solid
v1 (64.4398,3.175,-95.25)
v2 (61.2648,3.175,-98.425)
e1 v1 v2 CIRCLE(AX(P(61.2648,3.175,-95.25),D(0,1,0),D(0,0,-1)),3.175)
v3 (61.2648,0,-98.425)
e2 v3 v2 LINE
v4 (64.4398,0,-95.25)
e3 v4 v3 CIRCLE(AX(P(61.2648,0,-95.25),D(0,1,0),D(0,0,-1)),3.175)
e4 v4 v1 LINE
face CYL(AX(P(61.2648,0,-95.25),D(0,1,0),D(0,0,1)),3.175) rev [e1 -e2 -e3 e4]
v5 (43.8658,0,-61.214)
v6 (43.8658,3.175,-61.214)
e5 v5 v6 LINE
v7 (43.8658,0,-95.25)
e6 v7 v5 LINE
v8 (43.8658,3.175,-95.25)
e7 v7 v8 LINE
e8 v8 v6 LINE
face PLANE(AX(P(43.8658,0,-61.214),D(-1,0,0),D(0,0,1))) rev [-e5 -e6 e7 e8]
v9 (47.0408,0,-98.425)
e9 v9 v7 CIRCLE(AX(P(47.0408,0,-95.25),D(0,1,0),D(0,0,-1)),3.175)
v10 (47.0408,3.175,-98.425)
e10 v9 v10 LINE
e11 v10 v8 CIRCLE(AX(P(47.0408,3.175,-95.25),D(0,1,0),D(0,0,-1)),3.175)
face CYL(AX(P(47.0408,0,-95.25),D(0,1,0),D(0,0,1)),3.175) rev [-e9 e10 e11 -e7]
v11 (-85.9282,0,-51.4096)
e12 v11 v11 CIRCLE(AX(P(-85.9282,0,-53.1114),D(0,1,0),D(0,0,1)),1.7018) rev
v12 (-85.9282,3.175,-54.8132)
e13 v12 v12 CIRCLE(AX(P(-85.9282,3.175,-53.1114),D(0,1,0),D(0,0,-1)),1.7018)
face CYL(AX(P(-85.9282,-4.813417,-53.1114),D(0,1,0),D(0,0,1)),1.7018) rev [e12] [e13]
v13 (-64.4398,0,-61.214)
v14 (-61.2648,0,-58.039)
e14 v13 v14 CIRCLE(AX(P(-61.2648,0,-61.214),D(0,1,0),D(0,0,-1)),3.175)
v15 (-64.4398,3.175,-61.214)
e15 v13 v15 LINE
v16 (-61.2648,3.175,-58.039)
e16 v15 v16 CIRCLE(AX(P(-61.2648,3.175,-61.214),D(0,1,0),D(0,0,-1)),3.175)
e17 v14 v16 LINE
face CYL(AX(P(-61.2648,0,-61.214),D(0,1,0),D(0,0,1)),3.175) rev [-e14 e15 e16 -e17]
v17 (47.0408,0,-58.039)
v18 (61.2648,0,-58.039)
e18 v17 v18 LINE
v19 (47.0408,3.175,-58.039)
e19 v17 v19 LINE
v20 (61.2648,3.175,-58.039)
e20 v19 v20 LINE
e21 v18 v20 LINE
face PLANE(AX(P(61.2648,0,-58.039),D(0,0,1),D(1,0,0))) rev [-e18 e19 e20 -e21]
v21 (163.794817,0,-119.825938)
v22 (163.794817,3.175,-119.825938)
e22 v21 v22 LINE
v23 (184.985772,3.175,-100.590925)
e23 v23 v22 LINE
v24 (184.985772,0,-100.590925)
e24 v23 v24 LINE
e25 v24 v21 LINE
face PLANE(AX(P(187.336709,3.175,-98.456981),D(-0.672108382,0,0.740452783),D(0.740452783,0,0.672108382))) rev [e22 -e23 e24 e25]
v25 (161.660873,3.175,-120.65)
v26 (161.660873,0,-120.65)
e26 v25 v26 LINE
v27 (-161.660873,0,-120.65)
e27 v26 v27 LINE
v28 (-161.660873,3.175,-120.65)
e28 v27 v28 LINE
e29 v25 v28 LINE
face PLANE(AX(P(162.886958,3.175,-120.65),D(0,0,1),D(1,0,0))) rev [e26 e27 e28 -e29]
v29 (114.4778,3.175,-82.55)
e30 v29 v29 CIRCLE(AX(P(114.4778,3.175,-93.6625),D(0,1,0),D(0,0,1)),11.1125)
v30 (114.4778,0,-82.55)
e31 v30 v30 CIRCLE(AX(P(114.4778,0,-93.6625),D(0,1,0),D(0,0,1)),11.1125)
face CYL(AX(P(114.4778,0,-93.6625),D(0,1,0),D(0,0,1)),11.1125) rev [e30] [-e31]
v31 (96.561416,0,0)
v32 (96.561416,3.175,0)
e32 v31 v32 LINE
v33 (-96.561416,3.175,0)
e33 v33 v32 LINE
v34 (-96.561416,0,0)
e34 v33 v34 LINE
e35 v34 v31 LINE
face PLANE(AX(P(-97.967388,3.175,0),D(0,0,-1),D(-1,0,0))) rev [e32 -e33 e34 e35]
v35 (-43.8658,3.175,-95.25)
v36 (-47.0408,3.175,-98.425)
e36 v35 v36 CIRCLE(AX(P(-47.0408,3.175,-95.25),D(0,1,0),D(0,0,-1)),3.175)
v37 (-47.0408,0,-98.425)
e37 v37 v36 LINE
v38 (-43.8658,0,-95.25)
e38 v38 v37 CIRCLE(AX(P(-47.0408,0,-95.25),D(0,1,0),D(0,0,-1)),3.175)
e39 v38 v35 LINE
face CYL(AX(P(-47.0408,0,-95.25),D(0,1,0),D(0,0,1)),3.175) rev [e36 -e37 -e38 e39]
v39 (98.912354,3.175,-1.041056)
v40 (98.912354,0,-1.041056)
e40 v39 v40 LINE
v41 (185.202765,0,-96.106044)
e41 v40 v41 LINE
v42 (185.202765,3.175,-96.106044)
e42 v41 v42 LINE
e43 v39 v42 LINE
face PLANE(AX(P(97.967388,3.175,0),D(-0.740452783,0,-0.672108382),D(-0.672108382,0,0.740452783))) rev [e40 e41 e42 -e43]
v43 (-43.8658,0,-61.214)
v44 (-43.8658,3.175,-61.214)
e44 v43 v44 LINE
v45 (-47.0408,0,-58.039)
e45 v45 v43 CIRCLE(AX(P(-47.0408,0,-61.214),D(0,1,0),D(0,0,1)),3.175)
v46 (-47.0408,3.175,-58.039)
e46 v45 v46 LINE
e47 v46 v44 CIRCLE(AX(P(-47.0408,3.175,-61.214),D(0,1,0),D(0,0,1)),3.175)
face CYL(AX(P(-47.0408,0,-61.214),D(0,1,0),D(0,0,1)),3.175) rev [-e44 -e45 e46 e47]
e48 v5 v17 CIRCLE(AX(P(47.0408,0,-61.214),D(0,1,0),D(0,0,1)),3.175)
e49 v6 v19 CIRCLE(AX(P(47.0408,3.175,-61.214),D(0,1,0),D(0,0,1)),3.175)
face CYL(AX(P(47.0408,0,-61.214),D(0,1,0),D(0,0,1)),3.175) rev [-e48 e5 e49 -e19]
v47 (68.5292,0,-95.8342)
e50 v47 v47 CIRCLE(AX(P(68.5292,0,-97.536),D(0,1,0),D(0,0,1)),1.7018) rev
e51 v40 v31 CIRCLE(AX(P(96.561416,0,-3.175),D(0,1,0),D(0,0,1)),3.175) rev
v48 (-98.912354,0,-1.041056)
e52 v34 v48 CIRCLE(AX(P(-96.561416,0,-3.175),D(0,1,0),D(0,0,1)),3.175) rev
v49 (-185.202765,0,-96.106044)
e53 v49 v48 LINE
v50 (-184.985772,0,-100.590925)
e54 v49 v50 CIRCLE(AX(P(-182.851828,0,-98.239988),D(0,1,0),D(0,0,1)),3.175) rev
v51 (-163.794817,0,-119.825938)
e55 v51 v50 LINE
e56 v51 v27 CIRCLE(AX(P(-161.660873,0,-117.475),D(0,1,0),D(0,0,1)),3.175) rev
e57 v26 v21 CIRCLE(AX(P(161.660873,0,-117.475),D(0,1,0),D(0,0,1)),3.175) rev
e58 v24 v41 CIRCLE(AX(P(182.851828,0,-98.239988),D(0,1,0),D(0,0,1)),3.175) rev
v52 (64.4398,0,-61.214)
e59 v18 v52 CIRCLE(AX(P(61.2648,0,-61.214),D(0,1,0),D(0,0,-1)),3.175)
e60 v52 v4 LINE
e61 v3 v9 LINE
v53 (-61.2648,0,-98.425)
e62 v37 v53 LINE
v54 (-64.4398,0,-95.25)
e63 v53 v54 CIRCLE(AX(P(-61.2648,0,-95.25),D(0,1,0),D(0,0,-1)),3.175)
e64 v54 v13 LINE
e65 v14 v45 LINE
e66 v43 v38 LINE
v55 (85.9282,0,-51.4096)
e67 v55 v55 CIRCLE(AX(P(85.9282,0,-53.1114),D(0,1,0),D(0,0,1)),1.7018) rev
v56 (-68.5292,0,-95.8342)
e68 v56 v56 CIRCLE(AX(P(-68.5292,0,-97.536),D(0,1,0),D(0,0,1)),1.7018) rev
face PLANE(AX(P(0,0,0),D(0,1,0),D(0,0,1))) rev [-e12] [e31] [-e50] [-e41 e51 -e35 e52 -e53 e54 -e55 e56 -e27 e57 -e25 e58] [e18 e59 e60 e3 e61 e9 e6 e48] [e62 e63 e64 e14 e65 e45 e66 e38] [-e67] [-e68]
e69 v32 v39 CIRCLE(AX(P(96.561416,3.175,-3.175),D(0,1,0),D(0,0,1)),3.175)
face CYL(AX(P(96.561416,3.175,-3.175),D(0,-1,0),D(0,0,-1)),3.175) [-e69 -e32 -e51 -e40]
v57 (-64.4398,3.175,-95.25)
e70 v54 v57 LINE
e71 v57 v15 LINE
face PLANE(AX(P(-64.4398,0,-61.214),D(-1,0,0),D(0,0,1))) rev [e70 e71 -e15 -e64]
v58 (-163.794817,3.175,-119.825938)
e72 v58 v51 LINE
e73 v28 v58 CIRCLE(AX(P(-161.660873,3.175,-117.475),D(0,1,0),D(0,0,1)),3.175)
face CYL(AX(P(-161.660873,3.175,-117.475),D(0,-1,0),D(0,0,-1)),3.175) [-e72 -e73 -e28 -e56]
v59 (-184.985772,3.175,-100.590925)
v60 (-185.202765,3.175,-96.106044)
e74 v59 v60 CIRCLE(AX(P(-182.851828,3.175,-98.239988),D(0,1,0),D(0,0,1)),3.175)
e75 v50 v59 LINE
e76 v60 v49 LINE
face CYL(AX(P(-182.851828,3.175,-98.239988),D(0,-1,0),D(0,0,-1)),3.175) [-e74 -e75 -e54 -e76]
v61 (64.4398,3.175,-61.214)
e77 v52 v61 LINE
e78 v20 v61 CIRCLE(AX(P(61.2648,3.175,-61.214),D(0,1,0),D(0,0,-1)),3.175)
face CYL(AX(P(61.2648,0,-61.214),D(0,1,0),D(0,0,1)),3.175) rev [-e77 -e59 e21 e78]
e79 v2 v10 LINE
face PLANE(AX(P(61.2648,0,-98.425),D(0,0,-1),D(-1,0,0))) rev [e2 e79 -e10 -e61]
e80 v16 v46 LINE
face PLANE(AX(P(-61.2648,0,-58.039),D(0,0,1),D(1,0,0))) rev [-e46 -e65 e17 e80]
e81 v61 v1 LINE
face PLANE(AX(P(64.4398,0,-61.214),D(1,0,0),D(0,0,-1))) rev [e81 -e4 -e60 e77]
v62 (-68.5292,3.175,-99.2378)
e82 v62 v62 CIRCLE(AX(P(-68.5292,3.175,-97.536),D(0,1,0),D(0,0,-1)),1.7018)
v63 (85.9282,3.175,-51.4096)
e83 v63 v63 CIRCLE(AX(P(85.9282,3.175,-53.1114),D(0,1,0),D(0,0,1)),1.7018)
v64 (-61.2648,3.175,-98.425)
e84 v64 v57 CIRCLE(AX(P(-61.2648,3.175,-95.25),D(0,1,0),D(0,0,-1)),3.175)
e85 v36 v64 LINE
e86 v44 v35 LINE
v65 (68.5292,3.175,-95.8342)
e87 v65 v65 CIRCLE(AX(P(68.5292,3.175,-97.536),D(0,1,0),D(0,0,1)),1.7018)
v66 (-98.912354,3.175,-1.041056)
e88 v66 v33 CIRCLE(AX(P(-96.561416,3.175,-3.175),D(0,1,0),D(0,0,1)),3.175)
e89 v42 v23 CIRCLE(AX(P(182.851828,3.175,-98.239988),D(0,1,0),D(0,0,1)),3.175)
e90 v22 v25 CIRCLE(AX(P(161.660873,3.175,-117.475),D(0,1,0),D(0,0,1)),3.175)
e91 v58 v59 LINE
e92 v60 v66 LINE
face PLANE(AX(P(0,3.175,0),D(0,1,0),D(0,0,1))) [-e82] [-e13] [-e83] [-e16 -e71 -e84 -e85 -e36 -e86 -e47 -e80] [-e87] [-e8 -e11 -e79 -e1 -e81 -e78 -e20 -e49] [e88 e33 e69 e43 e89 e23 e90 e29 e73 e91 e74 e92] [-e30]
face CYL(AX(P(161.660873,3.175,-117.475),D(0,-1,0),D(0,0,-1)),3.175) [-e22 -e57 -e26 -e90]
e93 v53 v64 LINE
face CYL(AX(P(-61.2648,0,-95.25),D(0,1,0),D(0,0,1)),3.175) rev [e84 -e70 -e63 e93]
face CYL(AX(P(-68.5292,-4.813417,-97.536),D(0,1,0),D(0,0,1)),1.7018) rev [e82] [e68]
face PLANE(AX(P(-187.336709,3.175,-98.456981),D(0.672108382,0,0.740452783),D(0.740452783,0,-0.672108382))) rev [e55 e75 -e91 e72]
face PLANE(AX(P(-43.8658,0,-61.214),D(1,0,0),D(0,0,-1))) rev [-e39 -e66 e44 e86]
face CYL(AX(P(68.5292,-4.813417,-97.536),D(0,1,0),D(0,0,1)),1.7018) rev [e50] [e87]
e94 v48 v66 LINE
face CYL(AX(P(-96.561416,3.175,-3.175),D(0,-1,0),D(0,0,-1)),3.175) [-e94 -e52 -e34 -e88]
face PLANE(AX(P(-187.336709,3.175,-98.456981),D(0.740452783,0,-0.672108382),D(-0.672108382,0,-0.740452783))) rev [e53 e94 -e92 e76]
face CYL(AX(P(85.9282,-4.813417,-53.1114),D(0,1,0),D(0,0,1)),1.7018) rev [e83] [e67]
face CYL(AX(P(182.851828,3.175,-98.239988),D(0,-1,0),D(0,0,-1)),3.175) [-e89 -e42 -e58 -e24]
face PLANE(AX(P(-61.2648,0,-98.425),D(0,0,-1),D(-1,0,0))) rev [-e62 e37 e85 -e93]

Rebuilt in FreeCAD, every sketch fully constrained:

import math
import FreeCAD as App
import Part
import Sketcher
Q = App.Units.Quantity


def edges_at(feature, points):
    """Names of the edges that pass closest to the given points."""
    edges = feature.Shape.Edges
    near = lambda p: min(range(len(edges)), key=lambda i: edges[i].distToShape(Part.Vertex(*p))[0])
    return sorted({f"Edge{near(p) + 1}" for p in points})

doc = App.newDocument("Part")
body = doc.addObject("PartDesign::Body", "Body")

sketch1 = body.newObject("Sketcher::SketchObject", "Sketch")
sketch1.AttachmentSupport = (doc.getObject("XZ_Plane"), [""])
sketch1.MapMode = "FlatFace"
sketch1.addGeometry(Part.LineSegment(App.Vector(-98, 0, 0), App.Vector(98, 0, 0)), False)
sketch1.addGeometry(Part.LineSegment(App.Vector(98, 0, 0), App.Vector(187, -98, 0)), False)
sketch1.addGeometry(Part.LineSegment(App.Vector(187, -98, 0), App.Vector(163, -121, 0)), False)
sketch1.addGeometry(Part.LineSegment(App.Vector(163, -121, 0), App.Vector(-163, -121, 0)), False)
sketch1.addGeometry(Part.LineSegment(App.Vector(-163, -121, 0), App.Vector(-187, -98, 0)), False)
sketch1.addGeometry(Part.LineSegment(App.Vector(-187, -98, 0), App.Vector(-98, 0, 0)), False)
sketch1.addConstraint(Sketcher.Constraint("Coincident", 0, 2, 1, 1))
sketch1.addConstraint(Sketcher.Constraint("Coincident", 1, 2, 2, 1))
sketch1.addConstraint(Sketcher.Constraint("Coincident", 2, 2, 3, 1))
sketch1.addConstraint(Sketcher.Constraint("Coincident", 3, 2, 4, 1))
sketch1.addConstraint(Sketcher.Constraint("Coincident", 4, 2, 5, 1))
sketch1.addConstraint(Sketcher.Constraint("Coincident", 5, 2, 0, 1))
sketch1.addConstraint(Sketcher.Constraint("Horizontal", 0))
sketch1.addConstraint(Sketcher.Constraint("Horizontal", 3))
sketch1.addConstraint(Sketcher.Constraint("Symmetric", 0, 2, 5, 2, -1, 1))
sketch1.addConstraint(Sketcher.Constraint("Symmetric", 1, 2, 4, 2, -2))
sketch1.addConstraint(Sketcher.Constraint("Perpendicular", 1, 2))
sketch1.addConstraint(Sketcher.Constraint("Perpendicular", 4, 5))
sketch1.addConstraint(Sketcher.Constraint("Distance", 2, Q("1.3 in")))
sketch1.addConstraint(Sketcher.Constraint("DistanceY", 2, 2, -1, 1, Q("4.75 in")))
sketch1.addConstraint(Sketcher.Constraint("Angle", 1, Q("-47.77 deg")))
sketch1.addConstraint(Sketcher.Constraint("DistanceX", 0, 1, 0, 2, 195.934777))
pad1 = body.newObject("PartDesign::Pad", "Pad")
pad1.Profile = sketch1
pad1.Length = Q("0.125 in")
pad1.Reversed = True

sketch2 = body.newObject("Sketcher::SketchObject", "Sketch001")
sketch2.AttachmentSupport = (doc.getObject("XZ_Plane"), [""])
sketch2.MapMode = "FlatFace"
sketch2.AttachmentOffset = App.Placement(App.Vector(0, 0, -0.125 * 25.4), App.Rotation())
sketch2.addGeometry(Part.LineSegment(App.Vector(-61.3, -58, 0), App.Vector(-47, -58, 0)), False)
sketch2.addGeometry(Part.ArcOfCircle(Part.Circle(App.Vector(-47, -61.2, 0), App.Vector(0, 0, 1), 3.2), math.radians(0), math.radians(90)), False)
sketch2.addGeometry(Part.LineSegment(App.Vector(-43.9, -61.2, 0), App.Vector(-43.9, -95.2, 0)), False)
sketch2.addGeometry(Part.ArcOfCircle(Part.Circle(App.Vector(-47, -95.2, 0), App.Vector(0, 0, 1), 3.2), math.radians(-90), math.radians(0)), False)
sketch2.addGeometry(Part.LineSegment(App.Vector(-47, -98.4, 0), App.Vector(-61.3, -98.4, 0)), False)
sketch2.addGeometry(Part.ArcOfCircle(Part.Circle(App.Vector(-61.3, -95.2, 0), App.Vector(0, 0, 1), 3.2), math.radians(-180), math.radians(-90)), False)
sketch2.addGeometry(Part.LineSegment(App.Vector(-64.4, -95.2, 0), App.Vector(-64.4, -61.2, 0)), False)
sketch2.addGeometry(Part.ArcOfCircle(Part.Circle(App.Vector(-61.3, -61.2, 0), App.Vector(0, 0, 1), 3.2), math.radians(90), math.radians(180)), False)
sketch2.addGeometry(Part.LineSegment(App.Vector(43.9, -95.2, 0), App.Vector(43.9, -61.2, 0)), False)
sketch2.addGeometry(Part.ArcOfCircle(Part.Circle(App.Vector(47, -61.2, 0), App.Vector(0, 0, 1), 3.2), math.radians(90), math.radians(180)), False)
sketch2.addGeometry(Part.LineSegment(App.Vector(47, -58, 0), App.Vector(61.3, -58, 0)), False)
sketch2.addGeometry(Part.ArcOfCircle(Part.Circle(App.Vector(61.3, -61.2, 0), App.Vector(0, 0, 1), 3.2), math.radians(0), math.radians(90)), False)
sketch2.addGeometry(Part.LineSegment(App.Vector(64.4, -61.2, 0), App.Vector(64.4, -95.2, 0)), False)
sketch2.addGeometry(Part.ArcOfCircle(Part.Circle(App.Vector(61.3, -95.2, 0), App.Vector(0, 0, 1), 3.2), math.radians(-90), math.radians(0)), False)
sketch2.addGeometry(Part.LineSegment(App.Vector(61.3, -98.4, 0), App.Vector(47, -98.4, 0)), False)
sketch2.addGeometry(Part.ArcOfCircle(Part.Circle(App.Vector(47, -95.2, 0), App.Vector(0, 0, 1), 3.2), math.radians(-180), math.radians(-90)), False)
sketch2.addConstraint(Sketcher.Constraint("Tangent", 0, 2, 1, 2))
sketch2.addConstraint(Sketcher.Constraint("Tangent", 1, 1, 2, 1))
sketch2.addConstraint(Sketcher.Constraint("Tangent", 2, 2, 3, 2))
sketch2.addConstraint(Sketcher.Constraint("Tangent", 3, 1, 4, 1))
sketch2.addConstraint(Sketcher.Constraint("Tangent", 4, 2, 5, 2))
sketch2.addConstraint(Sketcher.Constraint("Tangent", 5, 1, 6, 1))
sketch2.addConstraint(Sketcher.Constraint("Tangent", 6, 2, 7, 2))
sketch2.addConstraint(Sketcher.Constraint("Tangent", 7, 1, 0, 1))
sketch2.addConstraint(Sketcher.Constraint("Tangent", 8, 2, 9, 2))
sketch2.addConstraint(Sketcher.Constraint("Tangent", 9, 1, 10, 1))
sketch2.addConstraint(Sketcher.Constraint("Tangent", 10, 2, 11, 2))
sketch2.addConstraint(Sketcher.Constraint("Tangent", 11, 1, 12, 1))
sketch2.addConstraint(Sketcher.Constraint("Tangent", 12, 2, 13, 2))
sketch2.addConstraint(Sketcher.Constraint("Tangent", 13, 1, 14, 1))
sketch2.addConstraint(Sketcher.Constraint("Tangent", 14, 2, 15, 2))
sketch2.addConstraint(Sketcher.Constraint("Tangent", 15, 1, 8, 1))
sketch2.addConstraint(Sketcher.Constraint("Horizontal", 0))
sketch2.addConstraint(Sketcher.Constraint("Vertical", 2))
sketch2.addConstraint(Sketcher.Constraint("Horizontal", 4))
sketch2.addConstraint(Sketcher.Constraint("Vertical", 6))
sketch2.addConstraint(Sketcher.Constraint("Vertical", 8))
sketch2.addConstraint(Sketcher.Constraint("Horizontal", 10))
sketch2.addConstraint(Sketcher.Constraint("Vertical", 12))
sketch2.addConstraint(Sketcher.Constraint("Horizontal", 14))
sketch2.addConstraint(Sketcher.Constraint("Equal", 1, 3))
sketch2.addConstraint(Sketcher.Constraint("Equal", 3, 5))
sketch2.addConstraint(Sketcher.Constraint("Equal", 5, 7))
sketch2.addConstraint(Sketcher.Constraint("Equal", 7, 9))
sketch2.addConstraint(Sketcher.Constraint("Equal", 9, 11))
sketch2.addConstraint(Sketcher.Constraint("Equal", 11, 13))
sketch2.addConstraint(Sketcher.Constraint("Equal", 13, 15))
sketch2.addConstraint(Sketcher.Constraint("Symmetric", 1, 3, 9, 3, -2))
sketch2.addConstraint(Sketcher.Constraint("Symmetric", 5, 3, 13, 3, -2))
sketch2.addConstraint(Sketcher.Constraint("Radius", 1, Q("0.125 in")))
sketch2.addConstraint(Sketcher.Constraint("DistanceX", 0, 1, 0, 2, Q("0.56 in")))
sketch2.addConstraint(Sketcher.Constraint("DistanceY", 2, 2, 2, 1, Q("1.34 in")))
sketch2.addConstraint(Sketcher.Constraint("DistanceY", 1, 3, -1, 1, Q("2.41 in")))
sketch2.addConstraint(Sketcher.Constraint("DistanceX", 1, 3, -1, 1, Q("1.852 in")))
pocket1 = body.newObject("PartDesign::Pocket", "Pocket")
pocket1.Profile = sketch2
pocket1.Type = "ThroughAll"
pocket1.Reversed = True

sketch3 = body.newObject("Sketcher::SketchObject", "Sketch002")
sketch3.AttachmentSupport = (doc.getObject("XZ_Plane"), [""])
sketch3.MapMode = "FlatFace"
sketch3.AttachmentOffset = App.Placement(App.Vector(0, 0, -0.125 * 25.4), App.Rotation())
sketch3.addGeometry(Part.Circle(App.Vector(68.5, -97.5, 0), App.Vector(0, 0, 1), 1.7), False)
sketch3.addGeometry(Part.Circle(App.Vector(85.9, -53.1, 0), App.Vector(0, 0, 1), 1.7), False)
sketch3.addGeometry(Part.Circle(App.Vector(-85.9, -53.1, 0), App.Vector(0, 0, 1), 1.7), False)
sketch3.addGeometry(Part.Circle(App.Vector(-68.5, -97.5, 0), App.Vector(0, 0, 1), 1.7), False)
sketch3.addConstraint(Sketcher.Constraint("Equal", 0, 1))
sketch3.addConstraint(Sketcher.Constraint("Equal", 1, 2))
sketch3.addConstraint(Sketcher.Constraint("Equal", 2, 3))
sketch3.addConstraint(Sketcher.Constraint("Symmetric", 1, 3, 2, 3, -2))
sketch3.addConstraint(Sketcher.Constraint("Symmetric", 0, 3, 3, 3, -2))
sketch3.addConstraint(Sketcher.Constraint("Diameter", 0, Q("0.134 in")))
sketch3.addConstraint(Sketcher.Constraint("DistanceY", 0, 3, -1, 1, Q("3.84 in")))
sketch3.addConstraint(Sketcher.Constraint("DistanceX", -1, 1, 0, 3, Q("2.698 in")))
sketch3.addConstraint(Sketcher.Constraint("DistanceX", -1, 1, 1, 3, Q("3.383 in")))
sketch3.addConstraint(Sketcher.Constraint("DistanceY", 1, 3, -1, 1, Q("2.091 in")))
pocket2 = body.newObject("PartDesign::Pocket", "Pocket001")
pocket2.Profile = sketch3
pocket2.Length = Q("0.125 in")
pocket2.Reversed = True
doc.recompute()

fillet = body.newObject("PartDesign::Fillet", "Fillet")
fillet.Base = (pocket2, edges_at(pocket2, [
    (-187.337, 1.587, -98.457),
    (-162.887, 1.587, -120.65),
    (162.887, 1.587, -120.65),
    (187.337, 1.587, -98.457),
    (97.967, 1.587, 0),
    (-97.967, 1.587, 0),
]))
fillet.Radius = Q("0.125 in")

sketch4 = body.newObject("Sketcher::SketchObject", "Sketch003")
sketch4.AttachmentSupport = (doc.getObject("XZ_Plane"), [""])
sketch4.MapMode = "FlatFace"
sketch4.AttachmentOffset = App.Placement(App.Vector(0, 0, -0.125 * 25.4), App.Rotation())
sketch4.addGeometry(Part.Circle(App.Vector(114, -94, 0), App.Vector(0, 0, 1), 11), False)
sketch4.addConstraint(Sketcher.Constraint("Diameter", 0, Q("0.875 in")))
sketch4.addConstraint(Sketcher.Constraint("DistanceX", -1, 1, 0, 3, Q("4.507 in")))
sketch4.addConstraint(Sketcher.Constraint("DistanceY", 0, 3, -1, 1, Q("3.6875 in")))
pocket3 = body.newObject("PartDesign::Pocket", "Pocket002")
pocket3.Profile = sketch4
pocket3.Type = "ThroughAll"
pocket3.Reversed = True

doc.recompute()
